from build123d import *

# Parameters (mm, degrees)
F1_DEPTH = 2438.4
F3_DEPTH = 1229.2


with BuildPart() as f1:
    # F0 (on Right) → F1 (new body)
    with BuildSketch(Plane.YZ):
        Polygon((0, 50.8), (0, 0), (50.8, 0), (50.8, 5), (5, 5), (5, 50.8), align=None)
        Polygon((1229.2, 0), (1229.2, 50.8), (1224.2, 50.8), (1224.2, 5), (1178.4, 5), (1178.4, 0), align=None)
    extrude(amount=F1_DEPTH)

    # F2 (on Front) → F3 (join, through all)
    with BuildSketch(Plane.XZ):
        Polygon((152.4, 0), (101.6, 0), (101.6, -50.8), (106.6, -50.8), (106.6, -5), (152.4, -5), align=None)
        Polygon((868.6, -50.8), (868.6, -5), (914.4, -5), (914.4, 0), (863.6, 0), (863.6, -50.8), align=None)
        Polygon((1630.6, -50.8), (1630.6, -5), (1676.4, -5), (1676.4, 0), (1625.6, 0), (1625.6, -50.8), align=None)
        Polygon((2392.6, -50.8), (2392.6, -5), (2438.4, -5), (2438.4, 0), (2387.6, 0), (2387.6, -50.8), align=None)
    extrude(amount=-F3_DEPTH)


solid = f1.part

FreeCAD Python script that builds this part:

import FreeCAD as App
import Part
import Sketcher
from FreeCAD import Vector
Q = App.Units.Quantity


def add_polygon(sketch, points):
    """Adds a closed chain of lines whose ends are joined by coincident constraints."""
    first, n = sketch.GeometryCount, len(points)
    for a, b in zip(points, points[1:] + points[:1]):
        sketch.addGeometry(Part.LineSegment(App.Vector(*a, 0), App.Vector(*b, 0)), False)
    for i in range(n):
        sketch.addConstraint(Sketcher.Constraint("Coincident", first + i, 2, first + (i + 1) % n, 1))

doc = App.newDocument("Part")
body = doc.addObject("PartDesign::Body", "Body")
body.AllowCompound = True

# Sketch on YZ plane
sketch1 = body.newObject("Sketcher::SketchObject", "Sketch")
sketch1.AttachmentSupport = (doc.getObject("YZ_Plane"), [""])
sketch1.MapMode = "FlatFace"
add_polygon(sketch1, [(0, 50.8), (0, 0), (50.8, 0), (50.8, 5), (5, 5), (5, 50.8)])  # lines 0-5
add_polygon(sketch1, [(1229.2, 0), (1229.2, 50.8), (1224.2, 50.8), (1224.2, 5), (1178.4, 5), (1178.4, 0)])  # lines 6-11
sketch1.addConstraint([
    Sketcher.Constraint("Vertical", 0),
    Sketcher.Constraint("Horizontal", 1),
    Sketcher.Constraint("Vertical", 2),
    Sketcher.Constraint("Horizontal", 3),
    Sketcher.Constraint("Vertical", 4),
    Sketcher.Constraint("Horizontal", 5),
    Sketcher.Constraint("Vertical", 6),
    Sketcher.Constraint("Horizontal", 7),
    Sketcher.Constraint("Vertical", 8),
    Sketcher.Constraint("Horizontal", 9),
    Sketcher.Constraint("Vertical", 10),
    Sketcher.Constraint("Horizontal", 11),
    Sketcher.Constraint("Coincident", 0, 2, -1, 1),
    Sketcher.Constraint("PointOnObject", 10, 2, -1),
    Sketcher.Constraint("Horizontal", 5, 2, 6, 2),
    Sketcher.Constraint("Horizontal", 3, 2, 8, 2),
    Sketcher.Constraint("Equal", 5, 7),
    Sketcher.Constraint("Equal", 3, 9),
    Sketcher.Constraint("Equal", 11, 0),
    Sketcher.Constraint("Equal", 7, 2),
    Sketcher.Constraint("DistanceX", 5, 2, 5, 1, Q("5 mm")),
    Sketcher.Constraint("DistanceX", 1, 1, 1, 2, Q("50.8 mm")),
    Sketcher.Constraint("DistanceX", -1, 1, 6, 2, Q("1229.2 mm")),
])
pad1 = body.newObject("PartDesign::Pad", "Pad")
pad1.Profile = sketch1
pad1.Length = 2438.4

# Sketch on XZ plane
sketch2 = body.newObject("Sketcher::SketchObject", "Sketch001")
sketch2.AttachmentSupport = (doc.getObject("XZ_Plane"), [""])
sketch2.MapMode = "FlatFace"
add_polygon(sketch2, [(152.4, 0), (101.6, 0), (101.6, -50.8), (106.6, -50.8), (106.6, -5), (152.4, -5)])  # lines 0-5
add_polygon(sketch2, [(868.6, -50.8), (868.6, -5), (914.4, -5), (914.4, 0), (863.6, 0), (863.6, -50.8)])  # lines 6-11
add_polygon(sketch2, [(1630.6, -50.8), (1630.6, -5), (1676.4, -5), (1676.4, 0), (1625.6, 0), (1625.6, -50.8)])  # lines 12-17
add_polygon(sketch2, [(2392.6, -50.8), (2392.6, -5), (2438.4, -5), (2438.4, 0), (2387.6, 0), (2387.6, -50.8)])  # lines 18-23
sketch2.addConstraint([
    Sketcher.Constraint("Horizontal", 0),
    Sketcher.Constraint("Vertical", 1),
    Sketcher.Constraint("Horizontal", 2),
    Sketcher.Constraint("Vertical", 3),
    Sketcher.Constraint("Horizontal", 4),
    Sketcher.Constraint("Vertical", 5),
    Sketcher.Constraint("Vertical", 6),
    Sketcher.Constraint("Horizontal", 7),
    Sketcher.Constraint("Vertical", 8),
    Sketcher.Constraint("Horizontal", 9),
    Sketcher.Constraint("Vertical", 10),
    Sketcher.Constraint("Horizontal", 11),
    Sketcher.Constraint("Vertical", 12),
    Sketcher.Constraint("Horizontal", 13),
    Sketcher.Constraint("Vertical", 14),
    Sketcher.Constraint("Horizontal", 15),
    Sketcher.Constraint("Vertical", 16),
    Sketcher.Constraint("Horizontal", 17),
    Sketcher.Constraint("Vertical", 18),
    Sketcher.Constraint("Horizontal", 19),
    Sketcher.Constraint("Vertical", 20),
    Sketcher.Constraint("Horizontal", 21),
    Sketcher.Constraint("Vertical", 22),
    Sketcher.Constraint("Horizontal", 23),
    Sketcher.Constraint("PointOnObject", 0, 2, -1),
    Sketcher.Constraint("PointOnObject", 8, 2, -1),
    Sketcher.Constraint("PointOnObject", 14, 2, -1),
    Sketcher.Constraint("PointOnObject", 20, 2, -1),
    Sketcher.Constraint("Horizontal", 4, 2, 6, 2),
    Sketcher.Constraint("Horizontal", 2, 2, 10, 2),
    Sketcher.Constraint("Horizontal", 7, 2, 12, 2),
    Sketcher.Constraint("Horizontal", 11, 2, 16, 2),
    Sketcher.Constraint("Horizontal", 13, 2, 18, 2),
    Sketcher.Constraint("Horizontal", 17, 2, 22, 2),
    Sketcher.Constraint("Equal", 4, 7),
    Sketcher.Constraint("Equal", 0, 9),
    Sketcher.Constraint("Equal", 7, 13),
    Sketcher.Constraint("Equal", 9, 15),
    Sketcher.Constraint("Equal", 13, 19),
    Sketcher.Constraint("Equal", 15, 21),
    Sketcher.Constraint("Equal", 21, 1),
    Sketcher.Constraint("Equal", 19, 3),
    Sketcher.Constraint("DistanceX", 2, 1, 2, 2, Q("5 mm")),
    Sketcher.Constraint("DistanceX", 0, 2, 0, 1, Q("50.8 mm")),
    Sketcher.Constraint("DistanceX", 3, 2, 6, 2, Q("762 mm")),
    Sketcher.Constraint("DistanceX", 6, 2, 12, 2, Q("762 mm")),
    Sketcher.Constraint("DistanceX", 12, 2, 18, 2, Q("762 mm")),
    Sketcher.Constraint("DistanceX", -1, 1, 0, 2, Q("101.6 mm")),
])
pad2 = body.newObject("PartDesign::Pad", "Pad001")
pad2.Profile = sketch2
pad2.Length = 1229.2
pad2.Reversed = True

doc.recompute()
